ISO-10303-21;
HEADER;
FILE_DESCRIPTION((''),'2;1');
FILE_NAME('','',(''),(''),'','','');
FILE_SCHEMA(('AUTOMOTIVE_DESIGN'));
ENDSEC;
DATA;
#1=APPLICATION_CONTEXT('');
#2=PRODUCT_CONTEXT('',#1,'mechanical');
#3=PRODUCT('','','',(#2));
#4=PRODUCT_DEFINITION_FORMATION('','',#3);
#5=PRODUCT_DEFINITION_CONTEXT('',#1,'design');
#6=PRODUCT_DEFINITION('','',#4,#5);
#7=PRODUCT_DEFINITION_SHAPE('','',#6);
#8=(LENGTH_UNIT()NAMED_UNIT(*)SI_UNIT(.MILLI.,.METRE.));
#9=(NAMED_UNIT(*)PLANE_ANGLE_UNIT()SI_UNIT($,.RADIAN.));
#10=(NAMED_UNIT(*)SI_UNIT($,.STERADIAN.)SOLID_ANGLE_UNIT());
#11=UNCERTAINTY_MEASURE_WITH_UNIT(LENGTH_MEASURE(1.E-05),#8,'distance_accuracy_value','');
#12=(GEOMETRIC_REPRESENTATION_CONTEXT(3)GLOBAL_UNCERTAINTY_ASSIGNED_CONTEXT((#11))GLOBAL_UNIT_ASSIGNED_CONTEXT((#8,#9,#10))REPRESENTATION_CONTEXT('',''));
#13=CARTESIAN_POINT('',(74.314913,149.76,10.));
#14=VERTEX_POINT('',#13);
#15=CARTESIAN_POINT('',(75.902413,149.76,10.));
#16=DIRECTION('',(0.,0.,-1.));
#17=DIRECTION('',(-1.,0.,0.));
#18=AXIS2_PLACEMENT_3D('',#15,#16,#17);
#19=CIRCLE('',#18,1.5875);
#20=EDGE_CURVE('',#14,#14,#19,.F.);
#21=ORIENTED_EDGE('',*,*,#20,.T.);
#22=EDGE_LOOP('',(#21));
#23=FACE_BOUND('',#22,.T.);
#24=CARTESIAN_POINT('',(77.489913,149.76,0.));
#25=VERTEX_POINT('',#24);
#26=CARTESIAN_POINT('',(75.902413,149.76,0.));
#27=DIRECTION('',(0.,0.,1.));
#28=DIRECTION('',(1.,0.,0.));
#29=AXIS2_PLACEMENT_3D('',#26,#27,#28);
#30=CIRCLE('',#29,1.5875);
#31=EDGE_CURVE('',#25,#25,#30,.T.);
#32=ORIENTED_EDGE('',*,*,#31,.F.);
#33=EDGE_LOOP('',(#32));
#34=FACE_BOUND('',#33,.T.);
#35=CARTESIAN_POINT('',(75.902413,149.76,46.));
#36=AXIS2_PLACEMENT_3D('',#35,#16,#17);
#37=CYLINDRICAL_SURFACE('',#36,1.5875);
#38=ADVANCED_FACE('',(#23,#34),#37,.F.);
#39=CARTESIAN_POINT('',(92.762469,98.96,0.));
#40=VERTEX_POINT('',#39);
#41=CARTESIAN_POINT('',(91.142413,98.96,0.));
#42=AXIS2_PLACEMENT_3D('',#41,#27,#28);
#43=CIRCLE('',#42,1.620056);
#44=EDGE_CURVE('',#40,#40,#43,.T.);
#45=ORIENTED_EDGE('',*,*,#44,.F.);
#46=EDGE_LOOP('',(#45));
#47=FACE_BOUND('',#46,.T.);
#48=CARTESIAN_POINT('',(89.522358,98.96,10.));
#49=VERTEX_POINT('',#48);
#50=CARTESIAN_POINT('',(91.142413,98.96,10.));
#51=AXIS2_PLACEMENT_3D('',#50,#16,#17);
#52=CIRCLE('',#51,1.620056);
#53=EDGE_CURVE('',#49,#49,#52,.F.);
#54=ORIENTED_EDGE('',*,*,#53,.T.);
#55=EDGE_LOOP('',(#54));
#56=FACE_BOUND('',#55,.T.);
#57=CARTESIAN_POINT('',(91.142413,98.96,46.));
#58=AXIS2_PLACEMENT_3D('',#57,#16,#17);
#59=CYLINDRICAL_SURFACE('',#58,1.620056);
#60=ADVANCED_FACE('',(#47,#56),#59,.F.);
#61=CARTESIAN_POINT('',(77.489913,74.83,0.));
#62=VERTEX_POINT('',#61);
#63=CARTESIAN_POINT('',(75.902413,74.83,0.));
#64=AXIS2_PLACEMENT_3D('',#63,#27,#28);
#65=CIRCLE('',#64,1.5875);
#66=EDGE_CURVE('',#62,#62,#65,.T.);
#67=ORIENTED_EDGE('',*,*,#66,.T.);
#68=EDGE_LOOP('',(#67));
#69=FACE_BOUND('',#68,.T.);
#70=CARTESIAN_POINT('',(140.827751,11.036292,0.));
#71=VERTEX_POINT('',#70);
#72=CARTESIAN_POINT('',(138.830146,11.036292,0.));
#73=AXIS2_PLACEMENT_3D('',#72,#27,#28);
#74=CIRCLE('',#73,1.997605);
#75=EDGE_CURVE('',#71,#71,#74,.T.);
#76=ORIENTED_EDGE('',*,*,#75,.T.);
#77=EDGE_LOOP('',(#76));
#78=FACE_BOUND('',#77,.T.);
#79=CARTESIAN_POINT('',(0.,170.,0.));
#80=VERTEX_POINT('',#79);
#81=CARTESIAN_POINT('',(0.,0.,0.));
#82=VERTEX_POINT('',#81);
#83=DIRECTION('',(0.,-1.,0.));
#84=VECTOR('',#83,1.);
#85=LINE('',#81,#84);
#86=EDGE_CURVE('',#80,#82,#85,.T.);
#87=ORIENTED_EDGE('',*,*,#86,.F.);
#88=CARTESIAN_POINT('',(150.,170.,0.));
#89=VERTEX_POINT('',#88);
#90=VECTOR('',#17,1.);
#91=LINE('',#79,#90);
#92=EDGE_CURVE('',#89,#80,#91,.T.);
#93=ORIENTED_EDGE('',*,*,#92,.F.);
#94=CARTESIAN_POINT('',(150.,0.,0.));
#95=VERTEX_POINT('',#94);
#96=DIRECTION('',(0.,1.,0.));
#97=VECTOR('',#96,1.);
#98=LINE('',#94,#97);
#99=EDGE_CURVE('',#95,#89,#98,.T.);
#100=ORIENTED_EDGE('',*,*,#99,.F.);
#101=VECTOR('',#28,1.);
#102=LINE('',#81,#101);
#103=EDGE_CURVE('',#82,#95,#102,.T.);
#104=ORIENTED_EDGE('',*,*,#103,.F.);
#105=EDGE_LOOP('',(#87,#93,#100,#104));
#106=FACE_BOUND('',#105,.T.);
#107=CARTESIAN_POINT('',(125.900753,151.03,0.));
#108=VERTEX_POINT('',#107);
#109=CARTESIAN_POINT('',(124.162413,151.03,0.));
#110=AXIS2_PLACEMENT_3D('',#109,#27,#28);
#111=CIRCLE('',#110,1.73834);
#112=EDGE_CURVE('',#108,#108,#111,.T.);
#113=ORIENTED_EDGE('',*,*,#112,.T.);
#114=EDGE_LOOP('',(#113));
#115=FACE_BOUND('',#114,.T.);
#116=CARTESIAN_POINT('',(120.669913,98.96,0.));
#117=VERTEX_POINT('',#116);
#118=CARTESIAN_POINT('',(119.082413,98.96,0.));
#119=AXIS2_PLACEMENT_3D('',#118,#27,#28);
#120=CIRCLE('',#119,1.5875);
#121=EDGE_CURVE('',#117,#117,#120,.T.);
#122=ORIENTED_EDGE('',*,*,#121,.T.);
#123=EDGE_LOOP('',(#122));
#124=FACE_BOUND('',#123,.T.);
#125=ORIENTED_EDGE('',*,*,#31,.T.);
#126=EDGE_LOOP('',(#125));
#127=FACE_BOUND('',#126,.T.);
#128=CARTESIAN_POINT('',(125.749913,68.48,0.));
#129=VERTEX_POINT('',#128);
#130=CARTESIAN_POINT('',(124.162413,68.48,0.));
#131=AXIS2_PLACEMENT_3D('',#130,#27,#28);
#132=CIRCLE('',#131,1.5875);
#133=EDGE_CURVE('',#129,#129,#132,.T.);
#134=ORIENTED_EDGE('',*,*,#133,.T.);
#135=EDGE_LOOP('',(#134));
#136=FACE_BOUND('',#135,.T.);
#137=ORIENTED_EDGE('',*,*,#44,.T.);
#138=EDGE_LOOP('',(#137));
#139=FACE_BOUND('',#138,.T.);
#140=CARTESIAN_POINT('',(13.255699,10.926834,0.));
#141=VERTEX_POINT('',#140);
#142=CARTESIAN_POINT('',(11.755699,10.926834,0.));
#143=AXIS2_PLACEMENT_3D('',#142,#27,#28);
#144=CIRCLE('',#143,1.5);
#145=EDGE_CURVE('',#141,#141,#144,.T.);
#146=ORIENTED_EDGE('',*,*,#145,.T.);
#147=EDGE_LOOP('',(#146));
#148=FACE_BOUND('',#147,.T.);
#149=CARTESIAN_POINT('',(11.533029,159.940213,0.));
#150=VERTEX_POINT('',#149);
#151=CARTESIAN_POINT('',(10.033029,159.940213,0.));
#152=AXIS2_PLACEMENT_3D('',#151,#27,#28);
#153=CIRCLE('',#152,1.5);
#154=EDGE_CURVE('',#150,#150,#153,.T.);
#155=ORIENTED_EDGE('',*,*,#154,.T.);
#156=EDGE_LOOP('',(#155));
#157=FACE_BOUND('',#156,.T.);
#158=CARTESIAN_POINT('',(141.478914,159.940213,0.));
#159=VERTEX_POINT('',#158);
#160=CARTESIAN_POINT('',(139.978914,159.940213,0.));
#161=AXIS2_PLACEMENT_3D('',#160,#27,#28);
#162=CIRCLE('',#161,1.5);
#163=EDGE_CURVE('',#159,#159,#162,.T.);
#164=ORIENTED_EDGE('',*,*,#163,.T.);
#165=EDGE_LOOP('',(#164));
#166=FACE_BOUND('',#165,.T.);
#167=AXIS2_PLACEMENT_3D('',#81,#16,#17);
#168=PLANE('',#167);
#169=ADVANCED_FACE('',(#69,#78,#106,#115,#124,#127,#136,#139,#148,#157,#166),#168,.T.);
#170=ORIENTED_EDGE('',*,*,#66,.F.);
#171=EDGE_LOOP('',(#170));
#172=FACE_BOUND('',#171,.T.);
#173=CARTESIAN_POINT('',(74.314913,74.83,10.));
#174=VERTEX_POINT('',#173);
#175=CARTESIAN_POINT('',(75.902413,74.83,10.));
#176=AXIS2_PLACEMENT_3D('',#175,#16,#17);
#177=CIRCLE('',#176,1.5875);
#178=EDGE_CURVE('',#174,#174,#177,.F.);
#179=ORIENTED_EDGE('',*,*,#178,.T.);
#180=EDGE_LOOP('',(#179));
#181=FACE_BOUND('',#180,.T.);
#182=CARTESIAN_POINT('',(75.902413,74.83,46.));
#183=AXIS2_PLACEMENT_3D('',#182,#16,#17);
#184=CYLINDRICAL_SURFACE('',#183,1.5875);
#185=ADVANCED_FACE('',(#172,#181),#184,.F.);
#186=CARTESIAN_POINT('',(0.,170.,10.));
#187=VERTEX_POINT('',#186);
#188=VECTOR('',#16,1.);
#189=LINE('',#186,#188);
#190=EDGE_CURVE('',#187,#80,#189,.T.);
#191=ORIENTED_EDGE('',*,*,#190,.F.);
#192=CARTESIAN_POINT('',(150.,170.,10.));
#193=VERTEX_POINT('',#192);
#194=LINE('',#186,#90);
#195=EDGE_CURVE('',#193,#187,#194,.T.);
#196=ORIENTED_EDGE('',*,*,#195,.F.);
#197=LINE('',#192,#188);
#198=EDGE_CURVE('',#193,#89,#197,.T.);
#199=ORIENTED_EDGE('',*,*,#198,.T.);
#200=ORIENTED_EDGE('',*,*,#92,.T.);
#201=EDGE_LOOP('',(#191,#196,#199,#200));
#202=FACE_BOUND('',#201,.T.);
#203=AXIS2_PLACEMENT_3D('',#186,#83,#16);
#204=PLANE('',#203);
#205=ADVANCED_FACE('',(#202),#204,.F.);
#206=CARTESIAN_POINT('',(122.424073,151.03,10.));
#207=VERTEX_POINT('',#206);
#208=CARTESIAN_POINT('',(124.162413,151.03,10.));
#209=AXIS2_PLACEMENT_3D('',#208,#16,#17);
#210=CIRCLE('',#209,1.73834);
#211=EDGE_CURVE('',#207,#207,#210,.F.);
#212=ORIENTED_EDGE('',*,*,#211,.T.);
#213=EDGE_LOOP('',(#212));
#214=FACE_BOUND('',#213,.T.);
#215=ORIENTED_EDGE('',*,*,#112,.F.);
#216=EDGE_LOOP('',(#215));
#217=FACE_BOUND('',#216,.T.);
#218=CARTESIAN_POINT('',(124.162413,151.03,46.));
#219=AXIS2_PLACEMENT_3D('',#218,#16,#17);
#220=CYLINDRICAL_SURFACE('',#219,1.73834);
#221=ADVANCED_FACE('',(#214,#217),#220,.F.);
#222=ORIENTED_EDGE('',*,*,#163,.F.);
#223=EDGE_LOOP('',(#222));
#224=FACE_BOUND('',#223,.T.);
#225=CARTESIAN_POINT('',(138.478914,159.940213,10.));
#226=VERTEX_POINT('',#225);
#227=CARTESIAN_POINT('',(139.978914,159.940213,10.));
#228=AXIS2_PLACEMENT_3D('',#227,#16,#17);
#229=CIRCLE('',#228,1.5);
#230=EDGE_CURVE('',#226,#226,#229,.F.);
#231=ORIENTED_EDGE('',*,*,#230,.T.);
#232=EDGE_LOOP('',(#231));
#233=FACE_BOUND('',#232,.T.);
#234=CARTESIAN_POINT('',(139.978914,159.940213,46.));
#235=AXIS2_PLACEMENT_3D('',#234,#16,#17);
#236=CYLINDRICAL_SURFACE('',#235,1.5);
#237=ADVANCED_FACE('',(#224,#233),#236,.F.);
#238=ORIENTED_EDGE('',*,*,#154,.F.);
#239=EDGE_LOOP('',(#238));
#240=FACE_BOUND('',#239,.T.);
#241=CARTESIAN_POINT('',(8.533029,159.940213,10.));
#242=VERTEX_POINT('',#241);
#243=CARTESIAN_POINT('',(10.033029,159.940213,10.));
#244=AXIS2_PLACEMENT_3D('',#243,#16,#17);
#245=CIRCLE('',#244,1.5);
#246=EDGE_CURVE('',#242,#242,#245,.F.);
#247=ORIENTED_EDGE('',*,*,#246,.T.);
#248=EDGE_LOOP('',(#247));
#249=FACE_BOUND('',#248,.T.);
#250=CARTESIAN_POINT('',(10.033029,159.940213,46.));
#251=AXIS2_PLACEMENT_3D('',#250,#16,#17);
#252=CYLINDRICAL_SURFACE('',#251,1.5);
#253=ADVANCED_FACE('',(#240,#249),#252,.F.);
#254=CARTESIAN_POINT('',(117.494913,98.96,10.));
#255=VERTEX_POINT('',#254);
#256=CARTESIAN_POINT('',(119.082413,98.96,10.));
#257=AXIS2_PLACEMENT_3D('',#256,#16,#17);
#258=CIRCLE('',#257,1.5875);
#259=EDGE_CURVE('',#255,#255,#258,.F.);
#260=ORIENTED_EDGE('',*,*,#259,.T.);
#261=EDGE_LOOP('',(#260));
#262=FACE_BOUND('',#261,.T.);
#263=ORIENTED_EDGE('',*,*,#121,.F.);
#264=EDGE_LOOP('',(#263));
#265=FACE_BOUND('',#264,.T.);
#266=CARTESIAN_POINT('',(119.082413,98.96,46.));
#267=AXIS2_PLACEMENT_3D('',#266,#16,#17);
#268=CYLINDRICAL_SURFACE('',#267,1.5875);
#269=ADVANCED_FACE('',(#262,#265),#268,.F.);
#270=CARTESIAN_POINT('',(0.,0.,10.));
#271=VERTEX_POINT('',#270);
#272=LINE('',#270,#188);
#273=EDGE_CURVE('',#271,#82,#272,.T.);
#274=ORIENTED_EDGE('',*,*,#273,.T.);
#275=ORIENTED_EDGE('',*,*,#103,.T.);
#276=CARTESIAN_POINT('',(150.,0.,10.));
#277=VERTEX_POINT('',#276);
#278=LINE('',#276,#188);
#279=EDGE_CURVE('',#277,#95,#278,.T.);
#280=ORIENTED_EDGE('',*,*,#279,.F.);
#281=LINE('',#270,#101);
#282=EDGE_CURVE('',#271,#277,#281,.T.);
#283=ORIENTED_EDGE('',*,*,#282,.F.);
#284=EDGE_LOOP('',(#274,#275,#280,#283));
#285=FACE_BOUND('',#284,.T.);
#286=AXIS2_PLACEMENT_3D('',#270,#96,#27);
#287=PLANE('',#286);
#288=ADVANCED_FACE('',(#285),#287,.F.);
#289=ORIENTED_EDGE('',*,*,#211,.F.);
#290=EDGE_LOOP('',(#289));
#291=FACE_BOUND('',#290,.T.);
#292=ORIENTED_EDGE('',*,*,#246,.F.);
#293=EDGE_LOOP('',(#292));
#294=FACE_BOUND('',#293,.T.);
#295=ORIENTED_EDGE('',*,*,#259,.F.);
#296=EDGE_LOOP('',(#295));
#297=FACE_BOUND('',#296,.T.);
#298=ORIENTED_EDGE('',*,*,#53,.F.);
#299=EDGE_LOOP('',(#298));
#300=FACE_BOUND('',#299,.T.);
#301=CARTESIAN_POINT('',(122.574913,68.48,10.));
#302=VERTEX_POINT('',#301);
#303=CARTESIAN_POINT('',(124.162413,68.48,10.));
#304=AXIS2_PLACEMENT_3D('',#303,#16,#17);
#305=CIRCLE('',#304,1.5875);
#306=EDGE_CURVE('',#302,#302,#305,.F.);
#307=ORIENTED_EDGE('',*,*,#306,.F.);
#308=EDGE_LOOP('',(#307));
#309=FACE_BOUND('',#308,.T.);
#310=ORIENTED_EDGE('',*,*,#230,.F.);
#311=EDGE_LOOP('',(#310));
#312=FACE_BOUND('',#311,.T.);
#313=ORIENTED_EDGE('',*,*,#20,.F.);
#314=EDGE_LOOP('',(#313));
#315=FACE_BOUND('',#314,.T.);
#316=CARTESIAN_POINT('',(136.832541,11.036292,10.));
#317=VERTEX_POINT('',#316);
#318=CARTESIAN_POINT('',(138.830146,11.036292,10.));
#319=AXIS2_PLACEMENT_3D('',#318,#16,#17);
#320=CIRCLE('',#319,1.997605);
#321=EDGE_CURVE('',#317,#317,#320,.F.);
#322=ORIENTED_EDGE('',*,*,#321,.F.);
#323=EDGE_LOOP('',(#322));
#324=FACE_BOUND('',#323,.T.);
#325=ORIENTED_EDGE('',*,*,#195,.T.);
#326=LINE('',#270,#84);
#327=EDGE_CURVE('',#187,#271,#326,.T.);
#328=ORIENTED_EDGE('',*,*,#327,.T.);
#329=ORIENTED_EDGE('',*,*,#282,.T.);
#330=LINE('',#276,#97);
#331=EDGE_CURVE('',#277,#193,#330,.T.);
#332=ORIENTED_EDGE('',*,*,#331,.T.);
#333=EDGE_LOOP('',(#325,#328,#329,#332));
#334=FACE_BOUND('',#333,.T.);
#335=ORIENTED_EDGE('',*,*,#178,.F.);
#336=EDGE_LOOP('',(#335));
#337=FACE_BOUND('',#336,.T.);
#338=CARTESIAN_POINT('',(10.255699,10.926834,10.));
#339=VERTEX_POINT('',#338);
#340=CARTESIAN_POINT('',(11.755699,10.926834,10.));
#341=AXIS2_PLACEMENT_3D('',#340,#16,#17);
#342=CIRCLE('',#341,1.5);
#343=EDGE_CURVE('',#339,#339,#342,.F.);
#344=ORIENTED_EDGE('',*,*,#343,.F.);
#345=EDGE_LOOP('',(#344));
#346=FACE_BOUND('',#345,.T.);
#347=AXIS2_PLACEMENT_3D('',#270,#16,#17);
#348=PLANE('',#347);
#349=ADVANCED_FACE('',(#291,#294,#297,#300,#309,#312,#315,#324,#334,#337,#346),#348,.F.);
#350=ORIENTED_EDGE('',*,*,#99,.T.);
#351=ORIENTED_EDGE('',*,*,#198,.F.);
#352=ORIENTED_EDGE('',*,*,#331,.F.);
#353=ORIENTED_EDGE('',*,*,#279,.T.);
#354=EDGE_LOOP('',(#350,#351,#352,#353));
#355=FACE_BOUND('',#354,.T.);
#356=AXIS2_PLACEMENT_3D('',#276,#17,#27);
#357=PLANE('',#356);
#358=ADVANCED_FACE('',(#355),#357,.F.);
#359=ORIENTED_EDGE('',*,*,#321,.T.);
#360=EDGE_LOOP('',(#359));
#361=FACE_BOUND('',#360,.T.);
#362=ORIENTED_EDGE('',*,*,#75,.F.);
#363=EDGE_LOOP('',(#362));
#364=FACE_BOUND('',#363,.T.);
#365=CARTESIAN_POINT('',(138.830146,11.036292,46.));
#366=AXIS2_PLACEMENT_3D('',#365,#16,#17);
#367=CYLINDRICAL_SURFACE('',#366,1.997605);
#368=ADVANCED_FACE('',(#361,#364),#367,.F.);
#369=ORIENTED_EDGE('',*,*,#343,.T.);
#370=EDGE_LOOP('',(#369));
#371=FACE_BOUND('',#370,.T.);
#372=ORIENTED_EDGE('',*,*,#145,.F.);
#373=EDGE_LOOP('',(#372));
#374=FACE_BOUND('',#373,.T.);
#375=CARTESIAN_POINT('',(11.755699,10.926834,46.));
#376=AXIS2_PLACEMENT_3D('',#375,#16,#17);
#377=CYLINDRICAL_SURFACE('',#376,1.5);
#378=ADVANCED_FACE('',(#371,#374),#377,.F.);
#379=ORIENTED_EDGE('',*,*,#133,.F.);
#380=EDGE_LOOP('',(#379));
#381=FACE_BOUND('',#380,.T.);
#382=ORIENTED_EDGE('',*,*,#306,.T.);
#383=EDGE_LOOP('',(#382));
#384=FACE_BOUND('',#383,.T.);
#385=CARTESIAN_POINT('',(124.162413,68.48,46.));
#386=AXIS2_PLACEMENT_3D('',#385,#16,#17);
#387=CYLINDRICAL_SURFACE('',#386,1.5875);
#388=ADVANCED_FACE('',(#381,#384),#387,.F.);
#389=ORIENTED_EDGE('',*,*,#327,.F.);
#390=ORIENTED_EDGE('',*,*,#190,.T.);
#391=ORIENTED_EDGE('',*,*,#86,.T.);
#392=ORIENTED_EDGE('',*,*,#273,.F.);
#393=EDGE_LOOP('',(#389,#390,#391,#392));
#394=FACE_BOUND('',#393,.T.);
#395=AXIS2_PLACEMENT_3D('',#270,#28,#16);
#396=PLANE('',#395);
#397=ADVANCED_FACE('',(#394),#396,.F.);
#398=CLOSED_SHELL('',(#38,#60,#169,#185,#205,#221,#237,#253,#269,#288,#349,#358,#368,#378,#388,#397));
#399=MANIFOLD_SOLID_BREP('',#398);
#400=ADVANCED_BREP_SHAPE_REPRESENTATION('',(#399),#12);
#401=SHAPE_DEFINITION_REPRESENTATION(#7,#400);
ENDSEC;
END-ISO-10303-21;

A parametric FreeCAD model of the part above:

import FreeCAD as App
import Part
import Sketcher
from FreeCAD import Vector

doc = App.newDocument("Part")
body = doc.addObject("PartDesign::Body", "Body")

sketch1 = body.newObject("Sketcher::SketchObject", "Sketch")
sketch1.AttachmentSupport = (doc.getObject("XY_Plane"), [""])
sketch1.MapMode = "FlatFace"
sketch1.addGeometry([
    Part.LineSegment(Vector(0, 170, 0), Vector(0, 0, 0)),
    Part.LineSegment(Vector(0, 0, 0), Vector(150, 0, 0)),
    Part.LineSegment(Vector(150, 0, 0), Vector(150, 170, 0)),
    Part.LineSegment(Vector(150, 170, 0), Vector(0, 170, 0)),
], False)
sketch1.addConstraint([
    Sketcher.Constraint("Coincident", 0, 2, 1, 1),
    Sketcher.Constraint("Coincident", 1, 2, 2, 1),
    Sketcher.Constraint("Coincident", 2, 2, 3, 1),
    Sketcher.Constraint("Coincident", 3, 2, 0, 1),
    Sketcher.Constraint("Vertical", 0),
    Sketcher.Constraint("Horizontal", 1),
    Sketcher.Constraint("Vertical", 2),
    Sketcher.Constraint("Horizontal", 3),
    Sketcher.Constraint("Coincident", 0, 2, -1, 1),
    Sketcher.Constraint("DistanceX", 1, 1, 1, 2, 150.0),
    Sketcher.Constraint("DistanceY", 0, 2, 0, 1, 170.0),
])
pad1 = body.newObject("PartDesign::Pad", "Pad")
pad1.Profile = sketch1
pad1.Length = 10

sketch2 = body.newObject("Sketcher::SketchObject", "Sketch001")
sketch2.AttachmentSupport = (doc.getObject("XY_Plane"), [""])
sketch2.MapMode = "FlatFace"
sketch2.addGeometry([
    Part.Circle(Vector(10, 159.9, 0), Vector(0, 0, 1), 1.5),
    Part.Circle(Vector(140, 159.9, 0), Vector(0, 0, 1), 1.5),
    Part.Circle(Vector(138.8, 11, 0), Vector(0, 0, 1), 2),
    Part.Circle(Vector(11.8, 10.9, 0), Vector(0, 0, 1), 1.5),
    Part.Circle(Vector(75.9, 149.8, 0), Vector(0, 0, 1), 1.6),
    Part.Circle(Vector(124.2, 151, 0), Vector(0, 0, 1), 1.7),
    Part.Circle(Vector(119.1, 99, 0), Vector(0, 0, 1), 1.6),
    Part.Circle(Vector(91.1, 99, 0), Vector(0, 0, 1), 1.6),
    Part.Circle(Vector(124.2, 68.5, 0), Vector(0, 0, 1), 1.6),
    Part.Circle(Vector(75.9, 74.8, 0), Vector(0, 0, 1), 1.6),
], False)
sketch2.addConstraint([
    Sketcher.Constraint("Equal", 0, 1),
    Sketcher.Constraint("Equal", 1, 3),
    Sketcher.Constraint("Equal", 4, 6),
    Sketcher.Constraint("Equal", 6, 8),
    Sketcher.Constraint("Equal", 8, 9),
    Sketcher.Constraint("Horizontal", 0, 3, 1, 3),
    Sketcher.Constraint("Horizontal", 6, 3, 7, 3),
    Sketcher.Constraint("Vertical", 5, 3, 8, 3),
    Sketcher.Constraint("Vertical", 4, 3, 9, 3),
    Sketcher.Constraint("Diameter", 0, 3.0),
    Sketcher.Constraint("Diameter", 4, 3.175),
    Sketcher.Constraint("DistanceY", 6, 3, 4, 3, 50.8),
    Sketcher.Constraint("Diameter", 2, 3.99521),
    Sketcher.Constraint("Diameter", 5, 3.47668),
    Sketcher.Constraint("Diameter", 7, 3.240111),
    Sketcher.Constraint("DistanceY", -1, 1, 4, 3, 149.76),
    Sketcher.Constraint("DistanceY", -1, 1, 5, 3, 151.03),
    Sketcher.Constraint("DistanceY", -1, 1, 8, 3, 68.48),
    Sketcher.Constraint("DistanceY", -1, 1, 9, 3, 74.83),
    Sketcher.Constraint("DistanceX", 4, 3, 5, 3, 48.26),
    Sketcher.Constraint("DistanceX", 6, 3, 5, 3, 5.08),
    Sketcher.Constraint("DistanceX", 7, 3, 6, 3, 27.94),
    Sketcher.Constraint("DistanceX", -1, 1, 3, 3, 11.755699),
    Sketcher.Constraint("DistanceX", 4, 3, 1, 3, 64.076501),
    Sketcher.Constraint("DistanceX", -1, 1, 0, 3, 10.033029),
    Sketcher.Constraint("DistanceY", -1, 1, 2, 3, 11.036292),
    Sketcher.Constraint("DistanceX", 2, 3, 1, 3, 1.148768),
    Sketcher.Constraint("DistanceY", 2, 3, 1, 3, 148.903921),
    Sketcher.Constraint("DistanceY", 3, 3, 0, 3, 149.013379),
    Sketcher.Constraint("DistanceX", -1, 1, 1, 3, 139.978914),
])
pocket1 = body.newObject("PartDesign::Pocket", "Pocket")
pocket1.Profile = sketch2
pocket1.Length = 46
pocket1.Reversed = True

doc.recompute()
